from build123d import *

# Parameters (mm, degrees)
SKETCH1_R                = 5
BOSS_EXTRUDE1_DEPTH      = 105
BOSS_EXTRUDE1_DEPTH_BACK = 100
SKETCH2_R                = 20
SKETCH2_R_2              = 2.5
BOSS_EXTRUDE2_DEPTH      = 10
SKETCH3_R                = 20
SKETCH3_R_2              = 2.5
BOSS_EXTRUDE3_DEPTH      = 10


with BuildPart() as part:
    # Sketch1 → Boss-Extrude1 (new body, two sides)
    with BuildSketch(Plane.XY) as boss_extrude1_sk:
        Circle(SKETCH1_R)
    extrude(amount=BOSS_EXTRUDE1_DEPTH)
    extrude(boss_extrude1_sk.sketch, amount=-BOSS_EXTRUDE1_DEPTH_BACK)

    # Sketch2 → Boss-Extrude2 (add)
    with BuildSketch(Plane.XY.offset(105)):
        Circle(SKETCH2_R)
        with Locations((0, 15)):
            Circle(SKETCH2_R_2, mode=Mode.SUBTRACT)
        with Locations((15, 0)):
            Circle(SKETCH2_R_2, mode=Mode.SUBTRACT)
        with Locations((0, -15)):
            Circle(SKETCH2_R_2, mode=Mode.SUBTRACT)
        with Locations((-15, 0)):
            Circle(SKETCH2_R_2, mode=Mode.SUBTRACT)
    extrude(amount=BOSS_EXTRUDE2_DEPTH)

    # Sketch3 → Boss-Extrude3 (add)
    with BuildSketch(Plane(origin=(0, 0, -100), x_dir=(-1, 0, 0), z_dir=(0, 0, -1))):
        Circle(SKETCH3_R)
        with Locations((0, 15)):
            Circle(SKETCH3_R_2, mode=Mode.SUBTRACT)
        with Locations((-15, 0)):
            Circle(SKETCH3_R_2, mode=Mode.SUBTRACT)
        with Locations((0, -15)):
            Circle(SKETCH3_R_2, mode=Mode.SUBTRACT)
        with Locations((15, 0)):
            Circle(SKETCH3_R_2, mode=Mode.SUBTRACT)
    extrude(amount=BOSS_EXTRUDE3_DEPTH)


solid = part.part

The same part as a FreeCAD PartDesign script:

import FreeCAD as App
import Part
import Sketcher
Q = App.Units.Quantity

doc = App.newDocument("Part")
body = doc.addObject("PartDesign::Body", "Body")

# Sketch on XY plane
sketch1 = body.newObject("Sketcher::SketchObject", "Sketch")
sketch1.AttachmentSupport = (doc.getObject("XY_Plane"), [""])
sketch1.MapMode = "FlatFace"
sketch1.addGeometry(Part.Circle(App.Vector(0, 0, 0), App.Vector(0, 0, 1), 5), False)
sketch1.addConstraint(Sketcher.Constraint("Coincident", 0, 3, -1, 1))
sketch1.addConstraint(Sketcher.Constraint("Diameter", 0, Q("10 mm")))
pad1 = body.newObject("PartDesign::Pad", "Pad")
pad1.Profile = sketch1
pad1.Type = "TwoLengths"
pad1.Length = 105
pad1.Length2 = 100

# Sketch on XY plane
sketch2 = body.newObject("Sketcher::SketchObject", "Sketch001")
sketch2.AttachmentSupport = (doc.getObject("XY_Plane"), [""])
sketch2.MapMode = "FlatFace"
sketch2.AttachmentOffset = App.Placement(App.Vector(0, 0, 105), App.Rotation())
sketch2.addGeometry(Part.Circle(App.Vector(0, 0, 0), App.Vector(0, 0, 1), 20), False)
sketch2.addGeometry(Part.Circle(App.Vector(0, -15, 0), App.Vector(0, 0, 1), 2.5), False)
sketch2.addGeometry(Part.Circle(App.Vector(-15, 0, 0), App.Vector(0, 0, 1), 2.5), False)
sketch2.addGeometry(Part.Circle(App.Vector(15, 0, 0), App.Vector(0, 0, 1), 2.5), False)
sketch2.addGeometry(Part.Circle(App.Vector(0, 15, 0), App.Vector(0, 0, 1), 2.5), False)
sketch2.addConstraint(Sketcher.Constraint("Coincident", 0, 3, -1, 1))
sketch2.addConstraint(Sketcher.Constraint("Equal", 1, 2))
sketch2.addConstraint(Sketcher.Constraint("Equal", 2, 3))
sketch2.addConstraint(Sketcher.Constraint("Equal", 3, 4))
sketch2.addConstraint(Sketcher.Constraint("Symmetric", 2, 3, 3, 3, -1, 1))
sketch2.addConstraint(Sketcher.Constraint("Symmetric", 1, 3, 4, 3, -1, 1))
sketch2.addConstraint(Sketcher.Constraint("PointOnObject", 1, 3, -2))
sketch2.addConstraint(Sketcher.Constraint("PointOnObject", 2, 3, -1))
sketch2.addConstraint(Sketcher.Constraint("Diameter", 0, Q("40 mm")))
sketch2.addConstraint(Sketcher.Constraint("Diameter", 1, Q("5 mm")))
sketch2.addConstraint(Sketcher.Constraint("DistanceY", 1, 3, -1, 1, Q("15 mm")))
sketch2.addConstraint(Sketcher.Constraint("DistanceX", 2, 3, -1, 1, Q("15 mm")))
pad2 = body.newObject("PartDesign::Pad", "Pad001")
pad2.Profile = sketch2
pad2.Length = 10

# Sketch on XY plane
sketch3 = body.newObject("Sketcher::SketchObject", "Sketch002")
sketch3.AttachmentSupport = (doc.getObject("XY_Plane"), [""])
sketch3.MapMode = "FlatFace"
sketch3.AttachmentOffset = App.Placement(App.Vector(0, 0, -100), App.Rotation())
sketch3.addGeometry(Part.Circle(App.Vector(0, 0, 0), App.Vector(0, 0, 1), 20), False)
sketch3.addGeometry(Part.Circle(App.Vector(0, -15, 0), App.Vector(0, 0, 1), 2.5), False)
sketch3.addGeometry(Part.Circle(App.Vector(15, 0, 0), App.Vector(0, 0, 1), 2.5), False)
sketch3.addGeometry(Part.Circle(App.Vector(-15, 0, 0), App.Vector(0, 0, 1), 2.5), False)
sketch3.addGeometry(Part.Circle(App.Vector(0, 15, 0), App.Vector(0, 0, 1), 2.5), False)
sketch3.addConstraint(Sketcher.Constraint("Coincident", 0, 3, -1, 1))
sketch3.addConstraint(Sketcher.Constraint("Equal", 1, 2))
sketch3.addConstraint(Sketcher.Constraint("Equal", 2, 3))
sketch3.addConstraint(Sketcher.Constraint("Equal", 3, 4))
sketch3.addConstraint(Sketcher.Constraint("Symmetric", 2, 3, 3, 3, -1, 1))
sketch3.addConstraint(Sketcher.Constraint("Symmetric", 1, 3, 4, 3, -1, 1))
sketch3.addConstraint(Sketcher.Constraint("PointOnObject", 1, 3, -2))
sketch3.addConstraint(Sketcher.Constraint("PointOnObject", 2, 3, -1))
sketch3.addConstraint(Sketcher.Constraint("Diameter", 0, Q("40 mm")))
sketch3.addConstraint(Sketcher.Constraint("Diameter", 1, Q("5 mm")))
sketch3.addConstraint(Sketcher.Constraint("DistanceY", 1, 3, -1, 1, Q("15 mm")))
sketch3.addConstraint(Sketcher.Constraint("DistanceX", -1, 1, 2, 3, Q("15 mm")))
pad3 = body.newObject("PartDesign::Pad", "Pad002")
pad3.Profile = sketch3
pad3.Length = 10
pad3.Reversed = True

doc.recompute()
